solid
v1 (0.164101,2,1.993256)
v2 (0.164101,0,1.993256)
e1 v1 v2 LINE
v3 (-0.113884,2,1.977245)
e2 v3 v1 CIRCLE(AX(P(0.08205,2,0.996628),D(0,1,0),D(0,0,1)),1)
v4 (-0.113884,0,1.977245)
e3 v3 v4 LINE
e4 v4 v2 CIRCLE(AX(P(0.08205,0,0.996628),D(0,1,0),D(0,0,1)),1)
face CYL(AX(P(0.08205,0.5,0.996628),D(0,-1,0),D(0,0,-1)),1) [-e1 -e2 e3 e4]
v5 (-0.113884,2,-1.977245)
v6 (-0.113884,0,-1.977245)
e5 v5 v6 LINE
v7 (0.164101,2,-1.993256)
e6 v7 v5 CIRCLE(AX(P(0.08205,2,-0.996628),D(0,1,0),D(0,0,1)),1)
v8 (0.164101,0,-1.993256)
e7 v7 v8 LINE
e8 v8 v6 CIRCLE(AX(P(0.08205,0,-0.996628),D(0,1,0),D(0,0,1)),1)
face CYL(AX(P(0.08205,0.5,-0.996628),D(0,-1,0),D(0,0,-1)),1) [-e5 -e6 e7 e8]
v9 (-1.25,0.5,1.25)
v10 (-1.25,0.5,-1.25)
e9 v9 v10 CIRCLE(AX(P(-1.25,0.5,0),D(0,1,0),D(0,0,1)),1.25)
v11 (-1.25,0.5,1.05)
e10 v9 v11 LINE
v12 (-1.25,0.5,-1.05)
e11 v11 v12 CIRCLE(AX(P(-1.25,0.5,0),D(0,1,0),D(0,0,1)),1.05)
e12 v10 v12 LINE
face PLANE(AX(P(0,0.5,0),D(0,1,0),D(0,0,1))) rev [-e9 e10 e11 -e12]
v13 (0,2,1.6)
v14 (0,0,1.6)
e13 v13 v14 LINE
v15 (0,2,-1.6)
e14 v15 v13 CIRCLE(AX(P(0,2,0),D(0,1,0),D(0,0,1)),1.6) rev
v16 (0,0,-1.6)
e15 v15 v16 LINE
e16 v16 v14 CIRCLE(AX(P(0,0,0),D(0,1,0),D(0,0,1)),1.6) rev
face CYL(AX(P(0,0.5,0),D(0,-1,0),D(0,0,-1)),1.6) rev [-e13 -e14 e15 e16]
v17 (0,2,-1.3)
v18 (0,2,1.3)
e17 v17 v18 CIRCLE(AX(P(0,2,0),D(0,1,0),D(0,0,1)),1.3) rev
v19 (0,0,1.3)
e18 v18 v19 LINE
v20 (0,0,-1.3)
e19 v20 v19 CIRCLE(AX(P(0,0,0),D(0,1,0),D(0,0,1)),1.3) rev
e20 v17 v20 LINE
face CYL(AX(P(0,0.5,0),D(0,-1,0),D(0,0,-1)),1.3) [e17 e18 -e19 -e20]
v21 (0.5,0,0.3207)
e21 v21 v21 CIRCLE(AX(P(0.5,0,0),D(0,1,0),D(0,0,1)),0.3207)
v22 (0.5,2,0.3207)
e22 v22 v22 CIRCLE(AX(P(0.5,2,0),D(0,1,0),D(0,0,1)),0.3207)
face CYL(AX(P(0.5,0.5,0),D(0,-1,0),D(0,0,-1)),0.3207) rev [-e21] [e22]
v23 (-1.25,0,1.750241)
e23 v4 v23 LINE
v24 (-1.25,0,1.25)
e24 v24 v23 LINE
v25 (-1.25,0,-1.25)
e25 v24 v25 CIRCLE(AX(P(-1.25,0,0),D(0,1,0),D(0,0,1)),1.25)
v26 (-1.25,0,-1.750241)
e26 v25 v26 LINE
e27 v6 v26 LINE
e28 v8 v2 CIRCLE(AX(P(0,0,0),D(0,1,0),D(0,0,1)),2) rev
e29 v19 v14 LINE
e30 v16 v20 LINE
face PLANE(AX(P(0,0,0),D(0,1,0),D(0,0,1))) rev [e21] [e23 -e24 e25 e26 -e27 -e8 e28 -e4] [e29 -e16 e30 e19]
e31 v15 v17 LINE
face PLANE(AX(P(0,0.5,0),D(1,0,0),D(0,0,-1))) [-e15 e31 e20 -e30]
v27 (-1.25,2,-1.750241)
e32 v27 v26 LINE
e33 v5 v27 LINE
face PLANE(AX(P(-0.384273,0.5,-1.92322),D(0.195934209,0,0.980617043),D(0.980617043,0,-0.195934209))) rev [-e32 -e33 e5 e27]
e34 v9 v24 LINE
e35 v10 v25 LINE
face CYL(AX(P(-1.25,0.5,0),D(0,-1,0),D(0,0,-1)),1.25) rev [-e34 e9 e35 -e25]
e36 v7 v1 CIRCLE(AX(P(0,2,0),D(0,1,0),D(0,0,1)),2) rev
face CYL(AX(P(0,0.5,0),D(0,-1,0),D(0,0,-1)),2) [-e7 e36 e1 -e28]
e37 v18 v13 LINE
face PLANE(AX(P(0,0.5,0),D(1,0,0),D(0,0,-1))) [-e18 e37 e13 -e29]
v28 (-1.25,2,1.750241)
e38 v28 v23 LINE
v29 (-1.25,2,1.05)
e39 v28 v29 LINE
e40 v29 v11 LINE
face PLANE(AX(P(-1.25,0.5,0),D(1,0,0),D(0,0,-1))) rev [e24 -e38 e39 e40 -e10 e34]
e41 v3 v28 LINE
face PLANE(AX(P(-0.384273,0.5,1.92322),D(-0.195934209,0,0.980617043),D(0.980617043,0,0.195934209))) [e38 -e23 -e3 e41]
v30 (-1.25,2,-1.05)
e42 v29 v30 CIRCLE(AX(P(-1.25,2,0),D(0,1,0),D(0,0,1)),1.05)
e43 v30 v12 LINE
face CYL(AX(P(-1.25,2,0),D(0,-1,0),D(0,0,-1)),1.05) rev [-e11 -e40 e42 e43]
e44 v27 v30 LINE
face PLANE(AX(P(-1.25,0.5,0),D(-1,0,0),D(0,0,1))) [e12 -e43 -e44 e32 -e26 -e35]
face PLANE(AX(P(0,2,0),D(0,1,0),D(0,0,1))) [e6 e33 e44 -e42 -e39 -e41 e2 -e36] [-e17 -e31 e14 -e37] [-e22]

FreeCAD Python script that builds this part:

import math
import FreeCAD as App
import Part
import Sketcher

doc = App.newDocument("Part")
params = doc.addObject("Spreadsheet::Sheet", "Params")
for row, (alias, value) in enumerate([
    ("sketch1_radius", "1 mm"),
    ("sketch1_radius2", "2 mm"),
    ("sketch1_radius3", "1.3 mm"),
    ("sketch1_radius4", "1.6 mm"),
    ("sketch1_radius5", "1.25 mm"),
    ("pad1_length", "0.5 mm"),
    ("sketch2_radius", "1 mm"),
    ("sketch2_radius2", "2 mm"),
    ("sketch2_radius3", "1.3 mm"),
    ("sketch2_radius4", "1.6 mm"),
    ("sketch2_radius5", "1.05 mm"),
    ("pad2_length", "1.5 mm"),
], start=1):
    params.set(f"A{row}", alias)
    params.set(f"B{row}", "=" + value)
    params.setAlias(f"B{row}", alias)

body = doc.addObject("PartDesign::Body", "Body")

# Sketch on XZ plane
sketch1 = body.newObject("Sketcher::SketchObject", "Sketch")
sketch1.AttachmentSupport = (doc.getObject("XZ_Plane"), [""])
sketch1.MapMode = "FlatFace"
sketch1.addGeometry(Part.ArcOfCircle(Part.Circle(App.Vector(0.08, -1, 0), App.Vector(0, 0, 1), 1), math.radians(-101.3), math.radians(-85.29)), False)
sketch1.addGeometry(Part.LineSegment(App.Vector(-0.11, -1.98, 0), App.Vector(-1.25, -1.75, 0)), False)
sketch1.addGeometry(Part.LineSegment(App.Vector(-1.25, -1.75, 0), App.Vector(-1.25, -1.25, 0)), False)
sketch1.addGeometry(Part.ArcOfCircle(Part.Circle(App.Vector(-1.25, 0, 0), App.Vector(0, 0, 1), 1.25), math.radians(-90), math.radians(0)), False)
sketch1.addGeometry(Part.ArcOfCircle(Part.Circle(App.Vector(-1.25, 0, 0), App.Vector(0, 0, 1), 1.25), math.radians(0), math.radians(90)), False)
sketch1.addGeometry(Part.LineSegment(App.Vector(-1.25, 1.25, 0), App.Vector(-1.25, 1.75, 0)), False)
sketch1.addGeometry(Part.LineSegment(App.Vector(-1.25, 1.75, 0), App.Vector(-0.11, 1.98, 0)), False)
sketch1.addGeometry(Part.ArcOfCircle(Part.Circle(App.Vector(0.08, 1, 0), App.Vector(0, 0, 1), 1), math.radians(85.29), math.radians(101.3)), False)
sketch1.addGeometry(Part.ArcOfCircle(Part.Circle(App.Vector(0, 0, 0), App.Vector(0, 0, 1), 2), math.radians(-85), math.radians(85)), False)
sketch1.addGeometry(Part.Circle(App.Vector(0.5, 0, 0), App.Vector(0, 0, 1), 0.32), False)
sketch1.addGeometry(Part.ArcOfCircle(Part.Circle(App.Vector(0, 0, 0), App.Vector(0, 0, 1), 1.3), math.radians(-90), math.radians(90)), False)
sketch1.addGeometry(Part.LineSegment(App.Vector(0, -1.3, 0), App.Vector(0, -1.6, 0)), False)
sketch1.addGeometry(Part.ArcOfCircle(Part.Circle(App.Vector(0, 0, 0), App.Vector(0, 0, 1), 1.6), math.radians(-90), math.radians(90)), False)
sketch1.addGeometry(Part.LineSegment(App.Vector(0, 1.6, 0), App.Vector(0, 1.3, 0)), False)
sketch1.addConstraint(Sketcher.Constraint("Tangent", 0, 1, 1, 1))
sketch1.addConstraint(Sketcher.Constraint("Coincident", 1, 2, 2, 1))
sketch1.addConstraint(Sketcher.Constraint("Coincident", 2, 2, 3, 1))
sketch1.addConstraint(Sketcher.Constraint("Tangent", 3, 2, 4, 1))
sketch1.addConstraint(Sketcher.Constraint("Coincident", 4, 2, 5, 1))
sketch1.addConstraint(Sketcher.Constraint("Coincident", 5, 2, 6, 1))
sketch1.addConstraint(Sketcher.Constraint("Tangent", 6, 2, 7, 2))
sketch1.addConstraint(Sketcher.Constraint("Tangent", 7, 1, 8, 2))
sketch1.addConstraint(Sketcher.Constraint("Tangent", 8, 1, 0, 2))
sketch1.addConstraint(Sketcher.Constraint("Coincident", 10, 1, 11, 1))
sketch1.addConstraint(Sketcher.Constraint("Coincident", 11, 2, 12, 1))
sketch1.addConstraint(Sketcher.Constraint("Coincident", 12, 2, 13, 1))
sketch1.addConstraint(Sketcher.Constraint("Coincident", 13, 2, 10, 2))
sketch1.addConstraint(Sketcher.Constraint("Vertical", 2))
sketch1.addConstraint(Sketcher.Constraint("Vertical", 5))
sketch1.addConstraint(Sketcher.Constraint("Vertical", 11))
sketch1.addConstraint(Sketcher.Constraint("Vertical", 13))
sketch1.addConstraint(Sketcher.Constraint("Coincident", 8, 3, -1, 1))
sketch1.addConstraint(Sketcher.Constraint("Coincident", 10, 3, -1, 1))
sketch1.addConstraint(Sketcher.Constraint("Coincident", 12, 3, -1, 1))
sketch1.addConstraint(Sketcher.Constraint("Coincident", 3, 2, -1, 1))
sketch1.addConstraint(Sketcher.Constraint("Equal", 3, 4))
sketch1.addConstraint(Sketcher.Constraint("Equal", 0, 7))
sketch1.addConstraint(Sketcher.Constraint("Symmetric", 2, 2, 4, 2, -1))
sketch1.addConstraint(Sketcher.Constraint("Symmetric", 0, 1, 6, 2, -1))
sketch1.addConstraint(Sketcher.Constraint("PointOnObject", 9, 3, -1))
sketch1.addConstraint(Sketcher.Constraint("PointOnObject", 10, 1, -2))
sketch1.addConstraint(Sketcher.Constraint("PointOnObject", 12, 2, -2))
sketch1.addConstraint(Sketcher.Constraint("Vertical", 4, 3, 1, 2))
sketch1.addConstraint(Sketcher.Constraint("Radius", 0, 1.0))
sketch1.addConstraint(Sketcher.Constraint("Radius", 8, 2.0))
sketch1.addConstraint(Sketcher.Constraint("Radius", 10, 1.3))
sketch1.addConstraint(Sketcher.Constraint("Radius", 12, 1.6))
sketch1.addConstraint(Sketcher.Constraint("Radius", 3, 1.25))
sketch1.addConstraint(Sketcher.Constraint("Diameter", 9, 0.6414))
sketch1.addConstraint(Sketcher.Constraint("DistanceX", -1, 1, 9, 3, 0.5))
sketch1.addConstraint(Sketcher.Constraint("DistanceY", 2, 1, 2, 2, 0.500241))
sketch1.addConstraint(Sketcher.Constraint("DistanceX", -1, 1, 7, 1, 0.164101))
sketch1.setExpression("Constraints[29]", "Params.sketch1_radius")
sketch1.setExpression("Constraints[30]", "Params.sketch1_radius2")
sketch1.setExpression("Constraints[31]", "Params.sketch1_radius3")
sketch1.setExpression("Constraints[32]", "Params.sketch1_radius4")
sketch1.setExpression("Constraints[33]", "Params.sketch1_radius5")
pad1 = body.newObject("PartDesign::Pad", "Pad")
pad1.Profile = sketch1
pad1.setExpression("Length", "Params.pad1_length")
pad1.Reversed = True

# Sketch on XZ plane
sketch2 = body.newObject("Sketcher::SketchObject", "Sketch001")
sketch2.AttachmentSupport = (doc.getObject("XZ_Plane"), [""])
sketch2.MapMode = "FlatFace"
sketch2.AttachmentOffset = App.Placement(App.Vector(0, 0, -0.5), App.Rotation())
sketch2.addGeometry(Part.ArcOfCircle(Part.Circle(App.Vector(0.08, -1, 0), App.Vector(0, 0, 1), 1), math.radians(-101.3), math.radians(-85.29)), False)
sketch2.addGeometry(Part.LineSegment(App.Vector(-0.11, -1.98, 0), App.Vector(-1.25, -1.75, 0)), False)
sketch2.addGeometry(Part.LineSegment(App.Vector(-1.25, -1.75, 0), App.Vector(-1.25, -1.05, 0)), False)
sketch2.addGeometry(Part.ArcOfCircle(Part.Circle(App.Vector(-1.25, 0, 0), App.Vector(0, 0, 1), 1.05), math.radians(-90), math.radians(90)), False)
sketch2.addGeometry(Part.LineSegment(App.Vector(-1.25, 1.05, 0), App.Vector(-1.25, 1.75, 0)), False)
sketch2.addGeometry(Part.LineSegment(App.Vector(-1.25, 1.75, 0), App.Vector(-0.11, 1.98, 0)), False)
sketch2.addGeometry(Part.ArcOfCircle(Part.Circle(App.Vector(0.08, 1, 0), App.Vector(0, 0, 1), 1), math.radians(85.29), math.radians(101.3)), False)
sketch2.addGeometry(Part.ArcOfCircle(Part.Circle(App.Vector(0, 0, 0), App.Vector(0, 0, 1), 2), math.radians(-85), math.radians(85)), False)
sketch2.addGeometry(Part.Circle(App.Vector(0.5, 0, 0), App.Vector(0, 0, 1), 0.32), False)
sketch2.addGeometry(Part.ArcOfCircle(Part.Circle(App.Vector(0, 0, 0), App.Vector(0, 0, 1), 1.3), math.radians(-90), math.radians(90)), False)
sketch2.addGeometry(Part.LineSegment(App.Vector(0, -1.3, 0), App.Vector(0, -1.6, 0)), False)
sketch2.addGeometry(Part.ArcOfCircle(Part.Circle(App.Vector(0, 0, 0), App.Vector(0, 0, 1), 1.6), math.radians(-90), math.radians(90)), False)
sketch2.addGeometry(Part.LineSegment(App.Vector(0, 1.6, 0), App.Vector(0, 1.3, 0)), False)
sketch2.addConstraint(Sketcher.Constraint("Tangent", 0, 1, 1, 1))
sketch2.addConstraint(Sketcher.Constraint("Coincident", 1, 2, 2, 1))
sketch2.addConstraint(Sketcher.Constraint("Coincident", 2, 2, 3, 1))
sketch2.addConstraint(Sketcher.Constraint("Coincident", 3, 2, 4, 1))
sketch2.addConstraint(Sketcher.Constraint("Coincident", 4, 2, 5, 1))
sketch2.addConstraint(Sketcher.Constraint("Tangent", 5, 2, 6, 2))
sketch2.addConstraint(Sketcher.Constraint("Tangent", 6, 1, 7, 2))
sketch2.addConstraint(Sketcher.Constraint("Tangent", 7, 1, 0, 2))
sketch2.addConstraint(Sketcher.Constraint("Coincident", 9, 1, 10, 1))
sketch2.addConstraint(Sketcher.Constraint("Coincident", 10, 2, 11, 1))
sketch2.addConstraint(Sketcher.Constraint("Coincident", 11, 2, 12, 1))
sketch2.addConstraint(Sketcher.Constraint("Coincident", 12, 2, 9, 2))
sketch2.addConstraint(Sketcher.Constraint("Vertical", 2))
sketch2.addConstraint(Sketcher.Constraint("Vertical", 4))
sketch2.addConstraint(Sketcher.Constraint("Vertical", 10))
sketch2.addConstraint(Sketcher.Constraint("Vertical", 12))
sketch2.addConstraint(Sketcher.Constraint("Coincident", 7, 3, -1, 1))
sketch2.addConstraint(Sketcher.Constraint("Coincident", 9, 3, -1, 1))
sketch2.addConstraint(Sketcher.Constraint("Coincident", 11, 3, -1, 1))
sketch2.addConstraint(Sketcher.Constraint("Equal", 0, 6))
sketch2.addConstraint(Sketcher.Constraint("Symmetric", 2, 2, 3, 2, -1))
sketch2.addConstraint(Sketcher.Constraint("Symmetric", 0, 1, 5, 2, -1))
sketch2.addConstraint(Sketcher.Constraint("PointOnObject", 8, 3, -1))
sketch2.addConstraint(Sketcher.Constraint("PointOnObject", 9, 1, -2))
sketch2.addConstraint(Sketcher.Constraint("PointOnObject", 11, 2, -2))
sketch2.addConstraint(Sketcher.Constraint("Vertical", 3, 3, 1, 2))
sketch2.addConstraint(Sketcher.Constraint("Radius", 0, 1.0))
sketch2.addConstraint(Sketcher.Constraint("Radius", 7, 2.0))
sketch2.addConstraint(Sketcher.Constraint("Radius", 9, 1.3))
sketch2.addConstraint(Sketcher.Constraint("Radius", 11, 1.6))
sketch2.addConstraint(Sketcher.Constraint("Radius", 3, 1.05))
sketch2.addConstraint(Sketcher.Constraint("Diameter", 8, 0.6414))
sketch2.addConstraint(Sketcher.Constraint("DistanceX", -1, 1, 8, 3, 0.5))
sketch2.addConstraint(Sketcher.Constraint("DistanceX", 3, 3, -1, 1, 1.25))
sketch2.addConstraint(Sketcher.Constraint("DistanceY", 2, 1, 2, 2, 0.700241))
sketch2.addConstraint(Sketcher.Constraint("DistanceX", -1, 1, 6, 1, 0.164101))
sketch2.setExpression("Constraints[26]", "Params.sketch2_radius")
sketch2.setExpression("Constraints[27]", "Params.sketch2_radius2")
sketch2.setExpression("Constraints[28]", "Params.sketch2_radius3")
sketch2.setExpression("Constraints[29]", "Params.sketch2_radius4")
sketch2.setExpression("Constraints[30]", "Params.sketch2_radius5")
pad2 = body.newObject("PartDesign::Pad", "Pad001")
pad2.Profile = sketch2
pad2.setExpression("Length", "Params.pad2_length")
pad2.Reversed = True

doc.recompute()
